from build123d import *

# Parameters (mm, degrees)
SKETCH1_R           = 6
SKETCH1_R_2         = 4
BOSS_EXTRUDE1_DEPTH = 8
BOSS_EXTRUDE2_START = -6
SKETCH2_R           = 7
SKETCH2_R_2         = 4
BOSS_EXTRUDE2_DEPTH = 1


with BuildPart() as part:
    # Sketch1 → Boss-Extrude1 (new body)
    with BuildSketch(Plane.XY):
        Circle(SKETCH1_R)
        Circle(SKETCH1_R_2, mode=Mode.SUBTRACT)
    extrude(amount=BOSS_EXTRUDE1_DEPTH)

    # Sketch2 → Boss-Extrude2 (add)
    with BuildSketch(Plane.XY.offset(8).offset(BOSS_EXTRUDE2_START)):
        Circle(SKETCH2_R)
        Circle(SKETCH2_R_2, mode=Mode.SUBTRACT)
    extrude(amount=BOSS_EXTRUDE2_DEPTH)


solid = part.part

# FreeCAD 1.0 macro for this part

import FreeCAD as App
import Part
import Sketcher

V = App.Vector

doc = App.newDocument("Part")
body = doc.addObject("PartDesign::Body", "Body")

# Sketch on XY plane
sketch1 = doc.addObject("Sketcher::SketchObject", "Sketch")
body.addObject(sketch1)
sketch1.AttachmentSupport = (doc.XY_Plane, [""])
sketch1.MapMode = "FlatFace"
sketch1.addGeometry([
    Part.Circle(V(0, 0, 0), V(0, 0, 1), 6),
    Part.Circle(V(0, 0, 0), V(0, 0, 1), 4),
], False)
sketch1.addConstraint([
    Sketcher.Constraint("Coincident", 0, 3, -1, 1),
    Sketcher.Constraint("Coincident", 1, 3, -1, 1),
    Sketcher.Constraint("Diameter", 0, 12.0),
    Sketcher.Constraint("Diameter", 1, 8.0),
])
pad1 = doc.addObject("PartDesign::Pad", "Pad")
body.addObject(pad1)
pad1.Profile = sketch1
pad1.Length = 8

# Sketch on XY plane
sketch2 = doc.addObject("Sketcher::SketchObject", "Sketch001")
body.addObject(sketch2)
sketch2.AttachmentSupport = (doc.XY_Plane, [""])
sketch2.MapMode = "FlatFace"
sketch2.AttachmentOffset = App.Placement(V(0, 0, 2), App.Rotation())
sketch2.addGeometry([
    Part.Circle(V(0, 0, 0), V(0, 0, 1), 7),
    Part.Circle(V(0, 0, 0), V(0, 0, 1), 4),
], False)
sketch2.addConstraint([
    Sketcher.Constraint("Coincident", 0, 3, -1, 1),
    Sketcher.Constraint("Coincident", 1, 3, -1, 1),
    Sketcher.Constraint("Diameter", 0, 14.0),
    Sketcher.Constraint("Diameter", 1, 8.0),
])
pad2 = doc.addObject("PartDesign::Pad", "Pad001")
body.addObject(pad2)
pad2.Profile = sketch2
pad2.Length = 1

doc.recompute()
